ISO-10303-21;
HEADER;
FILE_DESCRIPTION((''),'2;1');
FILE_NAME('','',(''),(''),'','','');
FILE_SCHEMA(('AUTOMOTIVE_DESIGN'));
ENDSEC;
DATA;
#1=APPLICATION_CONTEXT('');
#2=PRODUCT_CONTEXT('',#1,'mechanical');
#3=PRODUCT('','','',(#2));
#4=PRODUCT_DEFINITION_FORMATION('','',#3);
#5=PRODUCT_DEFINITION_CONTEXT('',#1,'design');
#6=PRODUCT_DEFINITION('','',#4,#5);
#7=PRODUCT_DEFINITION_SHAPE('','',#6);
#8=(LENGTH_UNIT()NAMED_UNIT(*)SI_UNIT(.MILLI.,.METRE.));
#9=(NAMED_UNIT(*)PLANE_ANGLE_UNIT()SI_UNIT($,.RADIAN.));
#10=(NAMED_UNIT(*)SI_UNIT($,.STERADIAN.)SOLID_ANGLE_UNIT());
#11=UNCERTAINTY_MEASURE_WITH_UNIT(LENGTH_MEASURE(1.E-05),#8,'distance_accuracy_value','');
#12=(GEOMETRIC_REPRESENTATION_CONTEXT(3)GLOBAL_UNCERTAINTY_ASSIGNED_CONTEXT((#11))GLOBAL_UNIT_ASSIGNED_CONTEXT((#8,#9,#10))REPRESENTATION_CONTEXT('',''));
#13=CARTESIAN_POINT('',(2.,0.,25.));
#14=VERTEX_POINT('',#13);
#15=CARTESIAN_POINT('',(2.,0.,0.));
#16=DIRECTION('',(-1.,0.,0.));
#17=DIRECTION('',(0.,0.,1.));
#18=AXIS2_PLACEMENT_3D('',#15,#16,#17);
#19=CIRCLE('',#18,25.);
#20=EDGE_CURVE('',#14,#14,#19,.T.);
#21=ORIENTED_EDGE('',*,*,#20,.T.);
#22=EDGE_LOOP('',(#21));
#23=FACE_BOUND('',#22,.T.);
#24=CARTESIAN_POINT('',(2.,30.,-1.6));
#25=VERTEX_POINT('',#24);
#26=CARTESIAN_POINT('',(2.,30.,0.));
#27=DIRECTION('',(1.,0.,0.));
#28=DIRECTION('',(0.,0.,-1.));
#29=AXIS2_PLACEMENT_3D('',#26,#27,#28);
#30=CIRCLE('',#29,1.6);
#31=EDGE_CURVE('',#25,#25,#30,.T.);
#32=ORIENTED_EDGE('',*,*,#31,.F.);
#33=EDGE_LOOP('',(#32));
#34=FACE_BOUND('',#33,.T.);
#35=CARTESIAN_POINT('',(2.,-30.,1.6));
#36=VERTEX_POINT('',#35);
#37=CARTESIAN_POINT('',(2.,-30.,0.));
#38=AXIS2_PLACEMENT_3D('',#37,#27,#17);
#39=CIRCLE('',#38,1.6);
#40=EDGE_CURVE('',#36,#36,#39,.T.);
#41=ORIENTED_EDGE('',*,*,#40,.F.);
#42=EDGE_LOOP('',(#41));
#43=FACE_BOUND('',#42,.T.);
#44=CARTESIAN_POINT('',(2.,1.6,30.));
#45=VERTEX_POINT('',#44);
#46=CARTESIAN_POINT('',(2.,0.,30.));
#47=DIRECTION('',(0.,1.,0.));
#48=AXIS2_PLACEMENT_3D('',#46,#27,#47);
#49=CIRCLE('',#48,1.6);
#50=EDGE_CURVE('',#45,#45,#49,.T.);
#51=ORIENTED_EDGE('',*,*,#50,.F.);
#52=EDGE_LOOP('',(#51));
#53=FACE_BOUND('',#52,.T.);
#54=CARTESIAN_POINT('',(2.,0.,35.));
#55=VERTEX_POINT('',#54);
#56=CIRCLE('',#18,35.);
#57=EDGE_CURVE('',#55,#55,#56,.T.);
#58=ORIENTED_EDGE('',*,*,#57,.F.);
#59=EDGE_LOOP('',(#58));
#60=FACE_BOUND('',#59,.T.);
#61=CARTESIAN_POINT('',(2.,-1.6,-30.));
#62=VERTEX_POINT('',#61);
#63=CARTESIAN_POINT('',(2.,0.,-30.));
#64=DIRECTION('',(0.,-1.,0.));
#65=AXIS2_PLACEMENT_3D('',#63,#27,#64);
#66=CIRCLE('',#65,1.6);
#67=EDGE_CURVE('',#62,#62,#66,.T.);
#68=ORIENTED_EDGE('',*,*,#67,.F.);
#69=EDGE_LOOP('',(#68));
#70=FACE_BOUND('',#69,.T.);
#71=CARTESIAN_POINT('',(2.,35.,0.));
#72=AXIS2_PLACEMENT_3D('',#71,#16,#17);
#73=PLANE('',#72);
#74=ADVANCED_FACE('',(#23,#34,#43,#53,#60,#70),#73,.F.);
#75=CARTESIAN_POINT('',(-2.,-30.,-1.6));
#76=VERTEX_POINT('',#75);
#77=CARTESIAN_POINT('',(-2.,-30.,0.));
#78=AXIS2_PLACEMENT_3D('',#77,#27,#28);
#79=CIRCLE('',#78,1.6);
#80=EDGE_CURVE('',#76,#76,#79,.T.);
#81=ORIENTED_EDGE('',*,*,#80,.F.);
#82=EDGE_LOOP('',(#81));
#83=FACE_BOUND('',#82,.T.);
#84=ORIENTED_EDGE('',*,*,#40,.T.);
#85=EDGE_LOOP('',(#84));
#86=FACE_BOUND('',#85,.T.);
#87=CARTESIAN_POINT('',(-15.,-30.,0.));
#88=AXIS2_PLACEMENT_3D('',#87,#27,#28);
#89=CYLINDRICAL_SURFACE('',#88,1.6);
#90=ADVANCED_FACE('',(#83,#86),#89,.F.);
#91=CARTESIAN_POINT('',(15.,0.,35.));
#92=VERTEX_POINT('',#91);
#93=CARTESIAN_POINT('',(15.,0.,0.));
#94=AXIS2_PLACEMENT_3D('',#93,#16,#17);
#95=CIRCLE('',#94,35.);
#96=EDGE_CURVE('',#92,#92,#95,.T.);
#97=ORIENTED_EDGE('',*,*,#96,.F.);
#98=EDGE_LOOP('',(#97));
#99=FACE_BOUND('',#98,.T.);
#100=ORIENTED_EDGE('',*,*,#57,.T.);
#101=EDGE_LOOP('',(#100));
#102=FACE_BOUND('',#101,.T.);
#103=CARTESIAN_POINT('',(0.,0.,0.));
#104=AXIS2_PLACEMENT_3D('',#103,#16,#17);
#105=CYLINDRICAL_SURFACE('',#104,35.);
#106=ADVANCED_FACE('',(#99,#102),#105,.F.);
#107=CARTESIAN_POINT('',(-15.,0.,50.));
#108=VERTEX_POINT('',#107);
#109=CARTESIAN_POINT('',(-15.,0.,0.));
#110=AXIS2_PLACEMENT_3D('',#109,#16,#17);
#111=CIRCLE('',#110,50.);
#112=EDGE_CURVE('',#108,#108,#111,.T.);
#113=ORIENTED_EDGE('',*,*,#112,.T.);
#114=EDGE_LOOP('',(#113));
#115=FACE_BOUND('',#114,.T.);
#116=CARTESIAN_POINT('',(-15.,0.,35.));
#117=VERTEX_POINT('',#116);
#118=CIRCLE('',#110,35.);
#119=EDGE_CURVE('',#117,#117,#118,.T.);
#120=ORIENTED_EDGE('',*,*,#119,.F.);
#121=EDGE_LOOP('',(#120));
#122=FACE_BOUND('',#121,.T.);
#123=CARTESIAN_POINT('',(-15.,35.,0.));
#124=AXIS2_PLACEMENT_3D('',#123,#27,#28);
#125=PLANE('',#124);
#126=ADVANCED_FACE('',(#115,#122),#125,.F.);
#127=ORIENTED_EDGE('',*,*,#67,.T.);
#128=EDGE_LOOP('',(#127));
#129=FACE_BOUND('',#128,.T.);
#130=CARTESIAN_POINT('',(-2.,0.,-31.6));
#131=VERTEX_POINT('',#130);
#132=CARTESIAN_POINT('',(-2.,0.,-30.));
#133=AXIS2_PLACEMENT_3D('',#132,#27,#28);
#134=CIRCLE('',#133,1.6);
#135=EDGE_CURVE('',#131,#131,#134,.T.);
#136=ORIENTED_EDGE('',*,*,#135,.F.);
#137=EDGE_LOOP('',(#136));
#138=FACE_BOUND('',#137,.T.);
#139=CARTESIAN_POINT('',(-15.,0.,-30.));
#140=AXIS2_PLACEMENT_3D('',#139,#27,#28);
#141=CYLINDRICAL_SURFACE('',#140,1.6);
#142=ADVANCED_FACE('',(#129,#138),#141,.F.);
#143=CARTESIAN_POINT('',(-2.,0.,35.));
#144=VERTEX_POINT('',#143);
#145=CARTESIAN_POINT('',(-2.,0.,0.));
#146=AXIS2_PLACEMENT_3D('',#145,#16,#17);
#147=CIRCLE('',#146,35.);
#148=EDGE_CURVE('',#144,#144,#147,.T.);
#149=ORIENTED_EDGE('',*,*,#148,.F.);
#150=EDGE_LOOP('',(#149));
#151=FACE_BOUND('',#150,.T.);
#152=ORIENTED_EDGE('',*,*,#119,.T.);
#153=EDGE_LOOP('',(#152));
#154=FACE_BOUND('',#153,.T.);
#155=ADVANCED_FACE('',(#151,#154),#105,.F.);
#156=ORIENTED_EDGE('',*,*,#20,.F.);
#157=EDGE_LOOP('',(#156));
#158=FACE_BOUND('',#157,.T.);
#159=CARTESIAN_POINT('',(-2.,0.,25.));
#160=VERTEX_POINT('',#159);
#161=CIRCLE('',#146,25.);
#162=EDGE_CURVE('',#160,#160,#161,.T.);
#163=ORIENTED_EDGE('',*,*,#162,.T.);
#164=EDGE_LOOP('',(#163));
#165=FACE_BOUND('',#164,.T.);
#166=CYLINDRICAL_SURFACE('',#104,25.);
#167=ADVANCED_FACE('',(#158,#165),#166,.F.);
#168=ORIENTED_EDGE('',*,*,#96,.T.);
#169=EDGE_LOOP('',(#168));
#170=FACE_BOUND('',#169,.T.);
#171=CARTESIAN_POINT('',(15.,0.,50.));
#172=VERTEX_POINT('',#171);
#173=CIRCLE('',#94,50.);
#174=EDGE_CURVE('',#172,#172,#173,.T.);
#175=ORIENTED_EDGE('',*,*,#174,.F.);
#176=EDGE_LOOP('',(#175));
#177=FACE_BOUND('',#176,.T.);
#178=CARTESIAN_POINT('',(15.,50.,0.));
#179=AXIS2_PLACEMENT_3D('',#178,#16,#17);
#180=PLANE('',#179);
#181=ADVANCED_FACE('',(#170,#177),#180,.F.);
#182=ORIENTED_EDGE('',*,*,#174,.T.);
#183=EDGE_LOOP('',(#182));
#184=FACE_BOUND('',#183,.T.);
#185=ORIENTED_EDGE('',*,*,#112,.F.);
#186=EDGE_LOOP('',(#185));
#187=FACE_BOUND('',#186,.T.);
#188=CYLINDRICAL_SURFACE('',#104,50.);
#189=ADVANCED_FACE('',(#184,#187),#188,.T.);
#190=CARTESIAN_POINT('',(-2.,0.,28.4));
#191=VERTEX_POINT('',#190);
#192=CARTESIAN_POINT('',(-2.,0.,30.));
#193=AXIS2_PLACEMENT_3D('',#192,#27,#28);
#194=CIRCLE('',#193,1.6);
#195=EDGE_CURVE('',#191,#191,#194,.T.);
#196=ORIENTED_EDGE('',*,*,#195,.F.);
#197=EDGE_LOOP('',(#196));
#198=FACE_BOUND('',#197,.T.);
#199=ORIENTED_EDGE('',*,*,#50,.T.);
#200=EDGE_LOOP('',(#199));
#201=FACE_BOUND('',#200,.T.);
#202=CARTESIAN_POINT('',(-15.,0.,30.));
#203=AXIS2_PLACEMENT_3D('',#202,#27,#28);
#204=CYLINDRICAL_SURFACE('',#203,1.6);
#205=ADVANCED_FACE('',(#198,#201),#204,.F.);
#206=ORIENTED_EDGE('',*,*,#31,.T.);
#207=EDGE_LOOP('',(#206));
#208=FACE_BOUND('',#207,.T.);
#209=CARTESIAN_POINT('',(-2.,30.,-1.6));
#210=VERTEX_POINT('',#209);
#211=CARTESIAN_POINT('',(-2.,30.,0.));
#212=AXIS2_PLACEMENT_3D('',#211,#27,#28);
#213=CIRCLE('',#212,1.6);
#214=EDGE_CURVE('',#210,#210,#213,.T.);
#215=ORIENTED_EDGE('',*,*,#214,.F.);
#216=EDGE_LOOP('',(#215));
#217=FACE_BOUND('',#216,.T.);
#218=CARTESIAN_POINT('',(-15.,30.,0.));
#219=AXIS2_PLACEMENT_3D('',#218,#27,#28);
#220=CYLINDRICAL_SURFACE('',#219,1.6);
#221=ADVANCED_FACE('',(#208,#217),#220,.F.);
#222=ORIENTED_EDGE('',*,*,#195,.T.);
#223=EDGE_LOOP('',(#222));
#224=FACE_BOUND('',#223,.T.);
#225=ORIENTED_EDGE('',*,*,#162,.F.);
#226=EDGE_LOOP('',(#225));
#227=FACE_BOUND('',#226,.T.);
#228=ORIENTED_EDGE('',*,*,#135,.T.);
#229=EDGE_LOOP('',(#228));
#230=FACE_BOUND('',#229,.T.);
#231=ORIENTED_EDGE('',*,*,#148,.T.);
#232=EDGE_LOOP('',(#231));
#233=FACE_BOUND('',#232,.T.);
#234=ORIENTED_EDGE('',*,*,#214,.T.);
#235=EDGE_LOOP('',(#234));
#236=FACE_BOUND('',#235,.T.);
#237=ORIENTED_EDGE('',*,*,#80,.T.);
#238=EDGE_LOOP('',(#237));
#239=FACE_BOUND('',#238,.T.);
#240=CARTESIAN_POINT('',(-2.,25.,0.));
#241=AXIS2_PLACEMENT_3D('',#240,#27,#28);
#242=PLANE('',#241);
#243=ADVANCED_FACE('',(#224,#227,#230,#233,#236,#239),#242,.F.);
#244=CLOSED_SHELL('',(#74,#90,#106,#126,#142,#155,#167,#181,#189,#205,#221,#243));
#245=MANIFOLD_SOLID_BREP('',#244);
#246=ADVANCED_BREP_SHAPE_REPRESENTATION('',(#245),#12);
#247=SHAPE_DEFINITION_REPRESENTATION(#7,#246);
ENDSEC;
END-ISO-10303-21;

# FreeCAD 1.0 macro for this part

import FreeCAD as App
import Part
import Sketcher

V = App.Vector
Q = App.Units.Quantity

doc = App.newDocument("Part")
params = doc.addObject("Spreadsheet::Sheet", "Params")
for row, (alias, value) in enumerate([
    ("sketch1_width", "30 mm"),
    ("sketch1_width2", "13 mm"),
    ("sketch1_height", "15 mm"),
    ("sketch1_height2", "10 mm"),
    ("revolution_angle", "360 deg"),
    ("sketch2_diameter", "3.2 mm"),
], start=1):
    params.set(f"A{row}", alias)
    params.set(f"B{row}", "=" + value)
    params.setAlias(f"B{row}", alias)

body = doc.addObject("PartDesign::Body", "Body")

# Sketch on XY plane
sketch1 = body.newObject("Sketcher::SketchObject", "Sketch")
sketch1.AttachmentSupport = (doc.getObject("XY_Plane"), [""])
sketch1.MapMode = "FlatFace"
sketch1.addGeometry([
    Part.LineSegment(V(15, 50, 0), V(-15, 50, 0)),  # 0
    Part.LineSegment(V(-15, 50, 0), V(-15, 35, 0)),  # 1
    Part.LineSegment(V(-15, 35, 0), V(-2, 35, 0)),  # 2
    Part.LineSegment(V(-2, 35, 0), V(-2, 25, 0)),  # 3
    Part.LineSegment(V(-2, 25, 0), V(2, 25, 0)),  # 4
    Part.LineSegment(V(2, 25, 0), V(2, 35, 0)),  # 5
    Part.LineSegment(V(2, 35, 0), V(15, 35, 0)),  # 6
    Part.LineSegment(V(15, 35, 0), V(15, 50, 0)),  # 7
], False)
sketch1.addConstraint([
    Sketcher.Constraint("Coincident", 0, 2, 1, 1),
    Sketcher.Constraint("Coincident", 1, 2, 2, 1),
    Sketcher.Constraint("Coincident", 2, 2, 3, 1),
    Sketcher.Constraint("Coincident", 3, 2, 4, 1),
    Sketcher.Constraint("Coincident", 4, 2, 5, 1),
    Sketcher.Constraint("Coincident", 5, 2, 6, 1),
    Sketcher.Constraint("Coincident", 6, 2, 7, 1),
    Sketcher.Constraint("Coincident", 7, 2, 0, 1),
    Sketcher.Constraint("Horizontal", 0),
    Sketcher.Constraint("Vertical", 1),
    Sketcher.Constraint("Horizontal", 2),
    Sketcher.Constraint("Vertical", 3),
    Sketcher.Constraint("Horizontal", 4),
    Sketcher.Constraint("Vertical", 5),
    Sketcher.Constraint("Horizontal", 6),
    Sketcher.Constraint("Vertical", 7),
    Sketcher.Constraint("Symmetric", 2, 2, 5, 2, -2),
    Sketcher.Constraint("Equal", 2, 6),
    Sketcher.Constraint("DistanceX", 0, 2, 0, 1, Q("30 mm")),
    Sketcher.Constraint("DistanceX", 2, 1, 2, 2, Q("13 mm")),
    Sketcher.Constraint("DistanceY", 1, 2, 1, 1, Q("15 mm")),
    Sketcher.Constraint("DistanceY", 3, 2, 3, 1, Q("10 mm")),
    Sketcher.Constraint("DistanceY", -1, 1, 0, 2, Q("50 mm")),
])
sketch1.setExpression("Constraints[18]", "Params.sketch1_width")
sketch1.setExpression("Constraints[19]", "Params.sketch1_width2")
sketch1.setExpression("Constraints[20]", "Params.sketch1_height")
sketch1.setExpression("Constraints[21]", "Params.sketch1_height2")
revolution = body.newObject("PartDesign::Revolution", "Revolution")
revolution.Profile = sketch1
revolution.ReferenceAxis = (sketch1, ["H_Axis"])
revolution.setExpression("Angle", "Params.revolution_angle")

# Sketch on YZ plane
sketch2 = body.newObject("Sketcher::SketchObject", "Sketch001")
sketch2.AttachmentSupport = (doc.getObject("YZ_Plane"), [""])
sketch2.MapMode = "FlatFace"
sketch2.AttachmentOffset = App.Placement(V(0, 0, 2), App.Rotation())
sketch2.addGeometry(Part.Circle(V(30, 0, 0), V(0, 0, 1), 1.6), False)
sketch2.addConstraint([
    Sketcher.Constraint("PointOnObject", 0, 3, -1),
    Sketcher.Constraint("Diameter", 0, Q("3.2 mm")),
    Sketcher.Constraint("DistanceX", -1, 1, 0, 3, Q("30 mm")),
])
sketch2.setExpression("Constraints[1]", "Params.sketch2_diameter")
pocket1 = body.newObject("PartDesign::Pocket", "Pocket")
pocket1.Profile = sketch2
pocket1.Type = "ThroughAll"
doc.recompute()

polarpattern = body.newObject("PartDesign::PolarPattern", "PolarPattern")
polarpattern.Originals = [pocket1]
polarpattern.Axis = (doc.getObject("X_Axis"), [""])
polarpattern.Angle = 360
polarpattern.Occurrences = 4
body.Tip = polarpattern

doc.recompute()
